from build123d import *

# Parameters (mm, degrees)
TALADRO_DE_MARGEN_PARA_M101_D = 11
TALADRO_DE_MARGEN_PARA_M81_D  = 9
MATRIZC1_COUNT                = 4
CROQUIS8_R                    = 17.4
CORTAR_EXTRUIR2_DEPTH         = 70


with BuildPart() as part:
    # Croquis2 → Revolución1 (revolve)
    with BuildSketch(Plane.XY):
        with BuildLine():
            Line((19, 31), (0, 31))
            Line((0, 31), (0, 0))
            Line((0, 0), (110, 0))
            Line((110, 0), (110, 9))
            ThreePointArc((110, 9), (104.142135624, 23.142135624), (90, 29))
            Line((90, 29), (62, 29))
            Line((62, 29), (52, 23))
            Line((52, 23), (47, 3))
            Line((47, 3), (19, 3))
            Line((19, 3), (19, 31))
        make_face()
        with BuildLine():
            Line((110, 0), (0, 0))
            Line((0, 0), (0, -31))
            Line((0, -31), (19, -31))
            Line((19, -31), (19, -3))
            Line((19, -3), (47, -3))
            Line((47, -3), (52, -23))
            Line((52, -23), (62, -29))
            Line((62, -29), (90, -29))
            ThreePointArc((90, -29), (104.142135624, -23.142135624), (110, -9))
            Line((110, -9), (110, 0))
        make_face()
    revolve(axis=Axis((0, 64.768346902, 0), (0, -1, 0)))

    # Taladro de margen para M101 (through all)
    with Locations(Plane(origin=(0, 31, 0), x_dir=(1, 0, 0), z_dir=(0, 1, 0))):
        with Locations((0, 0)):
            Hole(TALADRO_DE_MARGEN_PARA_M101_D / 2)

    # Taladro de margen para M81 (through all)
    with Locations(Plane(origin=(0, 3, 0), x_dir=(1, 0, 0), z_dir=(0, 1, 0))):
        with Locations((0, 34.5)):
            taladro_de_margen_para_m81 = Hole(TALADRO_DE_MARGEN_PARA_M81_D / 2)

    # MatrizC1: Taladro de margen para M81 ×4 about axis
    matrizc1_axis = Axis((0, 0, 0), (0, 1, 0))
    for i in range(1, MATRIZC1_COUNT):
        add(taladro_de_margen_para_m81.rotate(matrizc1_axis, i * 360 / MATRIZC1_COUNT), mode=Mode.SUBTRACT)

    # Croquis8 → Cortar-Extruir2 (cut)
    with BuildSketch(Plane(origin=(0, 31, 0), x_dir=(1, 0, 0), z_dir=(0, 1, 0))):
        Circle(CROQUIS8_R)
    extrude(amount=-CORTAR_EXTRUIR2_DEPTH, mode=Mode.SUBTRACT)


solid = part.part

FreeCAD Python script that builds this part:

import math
import FreeCAD as App
import Part
import Sketcher

V = App.Vector
Q = App.Units.Quantity

doc = App.newDocument("Part")
body = doc.addObject("PartDesign::Body", "Body")

sketch1 = body.newObject("Sketcher::SketchObject", "Sketch")
sketch1.AttachmentSupport = (doc.getObject("XY_Plane"), [""])
sketch1.MapMode = "FlatFace"
sketch1.addGeometry(Part.LineSegment(V(19, 31, 0), V(0, 31, 0)), False)
sketch1.addGeometry(Part.LineSegment(V(0, 31, 0), V(0, -31, 0)), False)
sketch1.addGeometry(Part.LineSegment(V(0, -31, 0), V(19, -31, 0)), False)
sketch1.addGeometry(Part.LineSegment(V(19, -31, 0), V(19, -3, 0)), False)
sketch1.addGeometry(Part.LineSegment(V(19, -3, 0), V(47, -3, 0)), False)
sketch1.addGeometry(Part.LineSegment(V(47, -3, 0), V(52, -23, 0)), False)
sketch1.addGeometry(Part.LineSegment(V(52, -23, 0), V(62, -29, 0)), False)
sketch1.addGeometry(Part.LineSegment(V(62, -29, 0), V(90, -29, 0)), False)
sketch1.addGeometry(Part.ArcOfCircle(Part.Circle(V(90, -9, 0), V(0, 0, 1), 20), math.radians(-90), math.radians(0)), False)
sketch1.addGeometry(Part.LineSegment(V(110, -9, 0), V(110, 9, 0)), False)
sketch1.addGeometry(Part.ArcOfCircle(Part.Circle(V(90, 9, 0), V(0, 0, 1), 20), math.radians(0), math.radians(90)), False)
sketch1.addGeometry(Part.LineSegment(V(90, 29, 0), V(62, 29, 0)), False)
sketch1.addGeometry(Part.LineSegment(V(62, 29, 0), V(52, 23, 0)), False)
sketch1.addGeometry(Part.LineSegment(V(52, 23, 0), V(47, 3, 0)), False)
sketch1.addGeometry(Part.LineSegment(V(47, 3, 0), V(19, 3, 0)), False)
sketch1.addGeometry(Part.LineSegment(V(19, 3, 0), V(19, 31, 0)), False)
sketch1.addConstraint(Sketcher.Constraint("Coincident", 0, 2, 1, 1))
sketch1.addConstraint(Sketcher.Constraint("Coincident", 1, 2, 2, 1))
sketch1.addConstraint(Sketcher.Constraint("Coincident", 2, 2, 3, 1))
sketch1.addConstraint(Sketcher.Constraint("Coincident", 3, 2, 4, 1))
sketch1.addConstraint(Sketcher.Constraint("Coincident", 4, 2, 5, 1))
sketch1.addConstraint(Sketcher.Constraint("Coincident", 5, 2, 6, 1))
sketch1.addConstraint(Sketcher.Constraint("Coincident", 6, 2, 7, 1))
sketch1.addConstraint(Sketcher.Constraint("Tangent", 7, 2, 8, 1))
sketch1.addConstraint(Sketcher.Constraint("Tangent", 8, 2, 9, 1))
sketch1.addConstraint(Sketcher.Constraint("Tangent", 9, 2, 10, 1))
sketch1.addConstraint(Sketcher.Constraint("Tangent", 10, 2, 11, 1))
sketch1.addConstraint(Sketcher.Constraint("Coincident", 11, 2, 12, 1))
sketch1.addConstraint(Sketcher.Constraint("Coincident", 12, 2, 13, 1))
sketch1.addConstraint(Sketcher.Constraint("Coincident", 13, 2, 14, 1))
sketch1.addConstraint(Sketcher.Constraint("Coincident", 14, 2, 15, 1))
sketch1.addConstraint(Sketcher.Constraint("Coincident", 15, 2, 0, 1))
sketch1.addConstraint(Sketcher.Constraint("Horizontal", 0))
sketch1.addConstraint(Sketcher.Constraint("Vertical", 1))
sketch1.addConstraint(Sketcher.Constraint("Horizontal", 2))
sketch1.addConstraint(Sketcher.Constraint("Vertical", 3))
sketch1.addConstraint(Sketcher.Constraint("Horizontal", 4))
sketch1.addConstraint(Sketcher.Constraint("Horizontal", 7))
sketch1.addConstraint(Sketcher.Constraint("Vertical", 9))
sketch1.addConstraint(Sketcher.Constraint("Horizontal", 11))
sketch1.addConstraint(Sketcher.Constraint("Horizontal", 14))
sketch1.addConstraint(Sketcher.Constraint("Vertical", 15))
sketch1.addConstraint(Sketcher.Constraint("Equal", 8, 10))
sketch1.addConstraint(Sketcher.Constraint("Symmetric", 0, 2, 1, 2, -1, 1))
sketch1.addConstraint(Sketcher.Constraint("Symmetric", 6, 2, 11, 2, -1))
sketch1.addConstraint(Sketcher.Constraint("Symmetric", 5, 2, 12, 2, -1))
sketch1.addConstraint(Sketcher.Constraint("Symmetric", 4, 2, 13, 2, -1))
sketch1.addConstraint(Sketcher.Constraint("Vertical", 3, 2, 14, 2))
sketch1.addConstraint(Sketcher.Constraint("Equal", 4, 7))
sketch1.addConstraint(Sketcher.Constraint("Equal", 14, 3))
sketch1.addConstraint(Sketcher.Constraint("Radius", 8, Q("20 mm")))
sketch1.addConstraint(Sketcher.Constraint("DistanceX", 0, 2, 0, 1, Q("19 mm")))
sketch1.addConstraint(Sketcher.Constraint("DistanceX", 4, 1, 4, 2, Q("28 mm")))
sketch1.addConstraint(Sketcher.Constraint("DistanceY", 1, 2, 1, 1, Q("62 mm")))
sketch1.addConstraint(Sketcher.Constraint("DistanceY", 9, 1, 9, 2, Q("18 mm")))
sketch1.addConstraint(Sketcher.Constraint("DistanceX", -1, 1, 8, 3, Q("90 mm")))
sketch1.addConstraint(Sketcher.Constraint("DistanceX", -1, 1, 5, 2, Q("52 mm")))
sketch1.addConstraint(Sketcher.Constraint("DistanceY", 5, 2, -1, 1, Q("23 mm")))
revolution = body.newObject("PartDesign::Revolution", "Revolution")
revolution.Profile = sketch1
revolution.ReferenceAxis = (sketch1, ["V_Axis"])
revolution.Angle = 360

sketch2 = body.newObject("Sketcher::SketchObject", "Sketch001")
sketch2.AttachmentSupport = (doc.getObject("XZ_Plane"), [""])
sketch2.MapMode = "FlatFace"
sketch2.AttachmentOffset = App.Placement(V(0, 0, -31), App.Rotation())
sketch2.addGeometry(Part.Circle(V(0, 0, 0), V(0, 0, 1), 5.5), False)
sketch2.addConstraint(Sketcher.Constraint("Coincident", 0, 3, -1, 1))
sketch2.addConstraint(Sketcher.Constraint("Diameter", 0, Q("11 mm")))
doc.recompute()
hole = body.newObject("PartDesign::Hole", "Hole")
hole.Profile = sketch2
hole.ThreadType = "None"
hole.Diameter = 11
hole.DepthType = "ThroughAll"
hole.Reversed = True

sketch3 = body.newObject("Sketcher::SketchObject", "Sketch002")
sketch3.AttachmentSupport = (doc.getObject("XZ_Plane"), [""])
sketch3.MapMode = "FlatFace"
sketch3.AttachmentOffset = App.Placement(V(0, 0, -3), App.Rotation())
sketch3.addGeometry(Part.Circle(V(0, -34.5, 0), V(0, 0, 1), 4.5), False)
sketch3.addConstraint(Sketcher.Constraint("PointOnObject", 0, 3, -2))
sketch3.addConstraint(Sketcher.Constraint("Diameter", 0, Q("9 mm")))
sketch3.addConstraint(Sketcher.Constraint("DistanceY", 0, 3, -1, 1, Q("34.5 mm")))
doc.recompute()
hole2 = body.newObject("PartDesign::Hole", "Hole001")
hole2.Profile = sketch3
hole2.ThreadType = "None"
hole2.Diameter = 9
hole2.DepthType = "ThroughAll"
hole2.Reversed = True
doc.recompute()

polarpattern = body.newObject("PartDesign::PolarPattern", "PolarPattern")
polarpattern.Originals = [hole2]
polarpattern.Axis = (doc.getObject("Y_Axis"), [""])
polarpattern.Angle = 360
polarpattern.Occurrences = 4
body.Tip = polarpattern

sketch4 = body.newObject("Sketcher::SketchObject", "Sketch003")
sketch4.AttachmentSupport = (doc.getObject("XZ_Plane"), [""])
sketch4.MapMode = "FlatFace"
sketch4.AttachmentOffset = App.Placement(V(0, 0, -31), App.Rotation())
sketch4.addGeometry(Part.Circle(V(0, 0, 0), V(0, 0, 1), 17.4), False)
sketch4.addConstraint(Sketcher.Constraint("Coincident", 0, 3, -1, 1))
sketch4.addConstraint(Sketcher.Constraint("Diameter", 0, Q("34.8 mm")))
pocket1 = body.newObject("PartDesign::Pocket", "Pocket")
pocket1.Profile = sketch4
pocket1.Length = 70
pocket1.Reversed = True

doc.recompute()
